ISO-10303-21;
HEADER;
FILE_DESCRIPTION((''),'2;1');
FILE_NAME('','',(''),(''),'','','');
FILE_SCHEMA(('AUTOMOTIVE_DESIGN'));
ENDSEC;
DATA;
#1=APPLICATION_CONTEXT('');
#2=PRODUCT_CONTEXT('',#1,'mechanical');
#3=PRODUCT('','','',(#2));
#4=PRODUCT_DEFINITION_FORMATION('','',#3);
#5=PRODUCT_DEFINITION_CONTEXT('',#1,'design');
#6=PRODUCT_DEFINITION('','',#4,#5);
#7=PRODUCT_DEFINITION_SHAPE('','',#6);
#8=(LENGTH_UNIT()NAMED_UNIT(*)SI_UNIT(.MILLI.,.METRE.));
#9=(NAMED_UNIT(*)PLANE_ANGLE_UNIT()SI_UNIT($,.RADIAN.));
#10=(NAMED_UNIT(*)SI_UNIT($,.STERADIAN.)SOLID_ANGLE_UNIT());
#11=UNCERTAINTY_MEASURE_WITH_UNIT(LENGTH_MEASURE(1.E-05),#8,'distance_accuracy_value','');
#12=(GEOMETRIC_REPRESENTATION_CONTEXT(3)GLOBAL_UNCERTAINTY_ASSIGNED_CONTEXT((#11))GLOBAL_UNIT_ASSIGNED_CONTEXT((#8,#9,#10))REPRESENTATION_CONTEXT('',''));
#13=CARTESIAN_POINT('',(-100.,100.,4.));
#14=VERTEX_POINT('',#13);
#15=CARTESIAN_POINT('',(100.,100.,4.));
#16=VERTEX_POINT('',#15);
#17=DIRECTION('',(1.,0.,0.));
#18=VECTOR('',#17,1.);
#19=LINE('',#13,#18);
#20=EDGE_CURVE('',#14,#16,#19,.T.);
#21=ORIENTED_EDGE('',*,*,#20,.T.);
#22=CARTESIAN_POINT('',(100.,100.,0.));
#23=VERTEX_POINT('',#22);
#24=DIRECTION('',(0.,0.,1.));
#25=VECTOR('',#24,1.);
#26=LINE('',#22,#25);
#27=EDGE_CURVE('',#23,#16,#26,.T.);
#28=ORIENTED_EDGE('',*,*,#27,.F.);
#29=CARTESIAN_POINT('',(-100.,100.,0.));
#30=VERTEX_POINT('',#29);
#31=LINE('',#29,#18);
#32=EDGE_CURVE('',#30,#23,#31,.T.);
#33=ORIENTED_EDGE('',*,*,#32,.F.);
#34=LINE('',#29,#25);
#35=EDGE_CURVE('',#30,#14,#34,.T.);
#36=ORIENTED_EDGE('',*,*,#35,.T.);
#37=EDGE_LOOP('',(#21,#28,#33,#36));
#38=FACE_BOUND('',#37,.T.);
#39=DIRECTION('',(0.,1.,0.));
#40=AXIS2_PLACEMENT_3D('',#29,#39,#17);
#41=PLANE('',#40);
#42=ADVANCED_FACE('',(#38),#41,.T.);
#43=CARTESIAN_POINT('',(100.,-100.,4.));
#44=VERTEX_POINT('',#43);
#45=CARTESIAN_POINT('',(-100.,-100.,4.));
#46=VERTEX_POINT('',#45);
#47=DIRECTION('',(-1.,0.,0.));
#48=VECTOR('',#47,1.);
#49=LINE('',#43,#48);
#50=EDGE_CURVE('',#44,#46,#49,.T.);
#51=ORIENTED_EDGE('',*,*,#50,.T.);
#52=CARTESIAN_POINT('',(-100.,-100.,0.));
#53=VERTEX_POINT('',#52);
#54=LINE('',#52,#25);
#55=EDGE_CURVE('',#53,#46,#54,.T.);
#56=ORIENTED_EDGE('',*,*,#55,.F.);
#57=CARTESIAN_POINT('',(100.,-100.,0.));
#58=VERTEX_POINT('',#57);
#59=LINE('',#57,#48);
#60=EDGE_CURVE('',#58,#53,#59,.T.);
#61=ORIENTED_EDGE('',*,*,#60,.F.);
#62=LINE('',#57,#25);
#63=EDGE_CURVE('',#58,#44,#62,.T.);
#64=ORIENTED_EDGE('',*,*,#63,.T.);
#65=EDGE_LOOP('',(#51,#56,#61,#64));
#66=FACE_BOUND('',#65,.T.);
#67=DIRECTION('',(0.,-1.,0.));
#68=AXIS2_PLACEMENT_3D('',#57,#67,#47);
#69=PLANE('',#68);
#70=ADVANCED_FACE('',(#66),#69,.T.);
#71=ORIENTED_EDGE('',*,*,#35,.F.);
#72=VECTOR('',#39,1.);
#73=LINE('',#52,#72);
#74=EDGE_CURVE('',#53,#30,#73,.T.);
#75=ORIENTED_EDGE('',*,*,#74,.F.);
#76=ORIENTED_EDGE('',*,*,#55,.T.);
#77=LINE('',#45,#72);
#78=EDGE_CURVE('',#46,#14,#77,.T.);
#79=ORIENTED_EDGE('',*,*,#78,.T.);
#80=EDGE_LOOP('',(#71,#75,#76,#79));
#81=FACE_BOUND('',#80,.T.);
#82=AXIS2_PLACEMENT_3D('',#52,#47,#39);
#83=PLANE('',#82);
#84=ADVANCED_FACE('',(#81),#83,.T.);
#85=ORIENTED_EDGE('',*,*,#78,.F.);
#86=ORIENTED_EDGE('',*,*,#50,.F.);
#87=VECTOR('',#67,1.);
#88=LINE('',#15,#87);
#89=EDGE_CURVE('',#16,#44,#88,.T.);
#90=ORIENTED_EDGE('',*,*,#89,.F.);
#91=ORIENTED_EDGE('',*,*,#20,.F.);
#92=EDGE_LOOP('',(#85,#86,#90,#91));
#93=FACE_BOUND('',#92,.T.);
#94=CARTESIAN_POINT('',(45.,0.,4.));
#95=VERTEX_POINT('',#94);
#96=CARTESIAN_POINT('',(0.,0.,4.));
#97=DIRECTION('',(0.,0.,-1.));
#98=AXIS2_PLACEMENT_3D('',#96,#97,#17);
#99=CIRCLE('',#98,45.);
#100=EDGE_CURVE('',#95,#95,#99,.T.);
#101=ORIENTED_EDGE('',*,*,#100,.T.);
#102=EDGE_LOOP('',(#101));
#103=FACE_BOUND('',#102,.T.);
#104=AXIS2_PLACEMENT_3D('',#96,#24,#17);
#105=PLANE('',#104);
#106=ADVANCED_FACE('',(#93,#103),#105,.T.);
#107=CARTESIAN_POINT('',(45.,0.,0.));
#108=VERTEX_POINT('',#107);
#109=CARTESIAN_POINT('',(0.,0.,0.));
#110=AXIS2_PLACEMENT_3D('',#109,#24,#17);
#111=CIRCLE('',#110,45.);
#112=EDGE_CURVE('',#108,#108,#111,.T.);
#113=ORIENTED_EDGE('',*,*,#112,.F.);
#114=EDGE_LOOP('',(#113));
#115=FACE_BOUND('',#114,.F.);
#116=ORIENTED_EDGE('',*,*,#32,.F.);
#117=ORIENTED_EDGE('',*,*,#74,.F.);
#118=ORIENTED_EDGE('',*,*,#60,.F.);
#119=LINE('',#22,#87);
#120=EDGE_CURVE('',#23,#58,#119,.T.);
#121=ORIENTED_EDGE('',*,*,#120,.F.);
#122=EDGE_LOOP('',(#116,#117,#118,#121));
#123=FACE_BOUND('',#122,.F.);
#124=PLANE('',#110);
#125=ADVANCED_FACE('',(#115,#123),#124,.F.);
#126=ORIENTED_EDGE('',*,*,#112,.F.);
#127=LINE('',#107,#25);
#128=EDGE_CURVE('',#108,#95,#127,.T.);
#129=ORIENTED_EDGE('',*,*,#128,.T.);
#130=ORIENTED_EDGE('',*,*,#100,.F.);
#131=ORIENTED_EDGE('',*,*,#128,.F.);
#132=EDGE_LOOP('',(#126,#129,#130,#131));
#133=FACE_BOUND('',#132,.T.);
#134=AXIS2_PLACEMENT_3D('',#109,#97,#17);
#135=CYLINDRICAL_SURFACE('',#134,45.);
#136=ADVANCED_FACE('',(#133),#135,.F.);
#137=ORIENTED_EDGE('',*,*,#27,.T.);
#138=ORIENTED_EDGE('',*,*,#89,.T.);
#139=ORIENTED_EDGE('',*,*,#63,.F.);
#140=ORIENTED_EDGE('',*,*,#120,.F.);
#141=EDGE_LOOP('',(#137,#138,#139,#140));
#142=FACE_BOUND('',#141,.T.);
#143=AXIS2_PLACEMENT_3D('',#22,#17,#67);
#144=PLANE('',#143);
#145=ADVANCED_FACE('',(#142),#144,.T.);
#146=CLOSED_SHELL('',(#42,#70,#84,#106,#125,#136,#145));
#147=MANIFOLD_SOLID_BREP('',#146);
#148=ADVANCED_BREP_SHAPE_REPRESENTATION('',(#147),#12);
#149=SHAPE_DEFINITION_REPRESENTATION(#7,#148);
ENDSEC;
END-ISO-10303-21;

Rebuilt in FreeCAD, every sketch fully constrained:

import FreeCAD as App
import Part
import Sketcher

V = App.Vector


def add_polygon(sketch, points):
    """Adds a closed chain of lines whose ends are joined by coincident constraints."""
    first, n = sketch.GeometryCount, len(points)
    for a, b in zip(points, points[1:] + points[:1]):
        sketch.addGeometry(Part.LineSegment(App.Vector(*a, 0), App.Vector(*b, 0)), False)
    for i in range(n):
        sketch.addConstraint(Sketcher.Constraint("Coincident", first + i, 2, first + (i + 1) % n, 1))

doc = App.newDocument("Part")
params = doc.addObject("Spreadsheet::Sheet", "Params")
for row, (alias, value) in enumerate([
    ("sketch1_width", "200 mm"),
    ("pad1_length", "4 mm"),
    ("sketch2_diameter", "90 mm"),
    ("pocket1_length", "10 mm"),
], start=1):
    params.set(f"A{row}", alias)
    params.set(f"B{row}", "=" + value)
    params.setAlias(f"B{row}", alias)

body = doc.addObject("PartDesign::Body", "Body")

# Sketch on XY plane
sketch1 = body.newObject("Sketcher::SketchObject", "Sketch")
sketch1.AttachmentSupport = (doc.getObject("XY_Plane"), [""])
sketch1.MapMode = "FlatFace"
add_polygon(sketch1, [(100, 100), (-100, 100), (-100, -100), (100, -100)])  # lines 0-3
sketch1.addConstraint([
    Sketcher.Constraint("Horizontal", 0),
    Sketcher.Constraint("Vertical", 1),
    Sketcher.Constraint("Horizontal", 2),
    Sketcher.Constraint("Vertical", 3),
    Sketcher.Constraint("Symmetric", 0, 2, 2, 2, -1, 1),
    Sketcher.Constraint("Equal", 2, 1),
    Sketcher.Constraint("DistanceX", 0, 2, 0, 1, 200.0),
])
sketch1.setExpression("Constraints[10]", "Params.sketch1_width")
pad1 = body.newObject("PartDesign::Pad", "Pad")
pad1.Profile = sketch1
pad1.setExpression("Length", "Params.pad1_length")

# Sketch on XY plane
sketch2 = body.newObject("Sketcher::SketchObject", "Sketch001")
sketch2.AttachmentSupport = (doc.getObject("XY_Plane"), [""])
sketch2.MapMode = "FlatFace"
sketch2.addGeometry(Part.Circle(V(0, 0, 0), V(0, 0, 1), 45), False)
sketch2.addConstraint([
    Sketcher.Constraint("Coincident", 0, 3, -1, 1),
    Sketcher.Constraint("Diameter", 0, 90.0),
])
sketch2.setExpression("Constraints[1]", "Params.sketch2_diameter")
pocket1 = body.newObject("PartDesign::Pocket", "Pocket")
pocket1.Profile = sketch2
pocket1.setExpression("Length", "Params.pocket1_length")
pocket1.Reversed = True

doc.recompute()
